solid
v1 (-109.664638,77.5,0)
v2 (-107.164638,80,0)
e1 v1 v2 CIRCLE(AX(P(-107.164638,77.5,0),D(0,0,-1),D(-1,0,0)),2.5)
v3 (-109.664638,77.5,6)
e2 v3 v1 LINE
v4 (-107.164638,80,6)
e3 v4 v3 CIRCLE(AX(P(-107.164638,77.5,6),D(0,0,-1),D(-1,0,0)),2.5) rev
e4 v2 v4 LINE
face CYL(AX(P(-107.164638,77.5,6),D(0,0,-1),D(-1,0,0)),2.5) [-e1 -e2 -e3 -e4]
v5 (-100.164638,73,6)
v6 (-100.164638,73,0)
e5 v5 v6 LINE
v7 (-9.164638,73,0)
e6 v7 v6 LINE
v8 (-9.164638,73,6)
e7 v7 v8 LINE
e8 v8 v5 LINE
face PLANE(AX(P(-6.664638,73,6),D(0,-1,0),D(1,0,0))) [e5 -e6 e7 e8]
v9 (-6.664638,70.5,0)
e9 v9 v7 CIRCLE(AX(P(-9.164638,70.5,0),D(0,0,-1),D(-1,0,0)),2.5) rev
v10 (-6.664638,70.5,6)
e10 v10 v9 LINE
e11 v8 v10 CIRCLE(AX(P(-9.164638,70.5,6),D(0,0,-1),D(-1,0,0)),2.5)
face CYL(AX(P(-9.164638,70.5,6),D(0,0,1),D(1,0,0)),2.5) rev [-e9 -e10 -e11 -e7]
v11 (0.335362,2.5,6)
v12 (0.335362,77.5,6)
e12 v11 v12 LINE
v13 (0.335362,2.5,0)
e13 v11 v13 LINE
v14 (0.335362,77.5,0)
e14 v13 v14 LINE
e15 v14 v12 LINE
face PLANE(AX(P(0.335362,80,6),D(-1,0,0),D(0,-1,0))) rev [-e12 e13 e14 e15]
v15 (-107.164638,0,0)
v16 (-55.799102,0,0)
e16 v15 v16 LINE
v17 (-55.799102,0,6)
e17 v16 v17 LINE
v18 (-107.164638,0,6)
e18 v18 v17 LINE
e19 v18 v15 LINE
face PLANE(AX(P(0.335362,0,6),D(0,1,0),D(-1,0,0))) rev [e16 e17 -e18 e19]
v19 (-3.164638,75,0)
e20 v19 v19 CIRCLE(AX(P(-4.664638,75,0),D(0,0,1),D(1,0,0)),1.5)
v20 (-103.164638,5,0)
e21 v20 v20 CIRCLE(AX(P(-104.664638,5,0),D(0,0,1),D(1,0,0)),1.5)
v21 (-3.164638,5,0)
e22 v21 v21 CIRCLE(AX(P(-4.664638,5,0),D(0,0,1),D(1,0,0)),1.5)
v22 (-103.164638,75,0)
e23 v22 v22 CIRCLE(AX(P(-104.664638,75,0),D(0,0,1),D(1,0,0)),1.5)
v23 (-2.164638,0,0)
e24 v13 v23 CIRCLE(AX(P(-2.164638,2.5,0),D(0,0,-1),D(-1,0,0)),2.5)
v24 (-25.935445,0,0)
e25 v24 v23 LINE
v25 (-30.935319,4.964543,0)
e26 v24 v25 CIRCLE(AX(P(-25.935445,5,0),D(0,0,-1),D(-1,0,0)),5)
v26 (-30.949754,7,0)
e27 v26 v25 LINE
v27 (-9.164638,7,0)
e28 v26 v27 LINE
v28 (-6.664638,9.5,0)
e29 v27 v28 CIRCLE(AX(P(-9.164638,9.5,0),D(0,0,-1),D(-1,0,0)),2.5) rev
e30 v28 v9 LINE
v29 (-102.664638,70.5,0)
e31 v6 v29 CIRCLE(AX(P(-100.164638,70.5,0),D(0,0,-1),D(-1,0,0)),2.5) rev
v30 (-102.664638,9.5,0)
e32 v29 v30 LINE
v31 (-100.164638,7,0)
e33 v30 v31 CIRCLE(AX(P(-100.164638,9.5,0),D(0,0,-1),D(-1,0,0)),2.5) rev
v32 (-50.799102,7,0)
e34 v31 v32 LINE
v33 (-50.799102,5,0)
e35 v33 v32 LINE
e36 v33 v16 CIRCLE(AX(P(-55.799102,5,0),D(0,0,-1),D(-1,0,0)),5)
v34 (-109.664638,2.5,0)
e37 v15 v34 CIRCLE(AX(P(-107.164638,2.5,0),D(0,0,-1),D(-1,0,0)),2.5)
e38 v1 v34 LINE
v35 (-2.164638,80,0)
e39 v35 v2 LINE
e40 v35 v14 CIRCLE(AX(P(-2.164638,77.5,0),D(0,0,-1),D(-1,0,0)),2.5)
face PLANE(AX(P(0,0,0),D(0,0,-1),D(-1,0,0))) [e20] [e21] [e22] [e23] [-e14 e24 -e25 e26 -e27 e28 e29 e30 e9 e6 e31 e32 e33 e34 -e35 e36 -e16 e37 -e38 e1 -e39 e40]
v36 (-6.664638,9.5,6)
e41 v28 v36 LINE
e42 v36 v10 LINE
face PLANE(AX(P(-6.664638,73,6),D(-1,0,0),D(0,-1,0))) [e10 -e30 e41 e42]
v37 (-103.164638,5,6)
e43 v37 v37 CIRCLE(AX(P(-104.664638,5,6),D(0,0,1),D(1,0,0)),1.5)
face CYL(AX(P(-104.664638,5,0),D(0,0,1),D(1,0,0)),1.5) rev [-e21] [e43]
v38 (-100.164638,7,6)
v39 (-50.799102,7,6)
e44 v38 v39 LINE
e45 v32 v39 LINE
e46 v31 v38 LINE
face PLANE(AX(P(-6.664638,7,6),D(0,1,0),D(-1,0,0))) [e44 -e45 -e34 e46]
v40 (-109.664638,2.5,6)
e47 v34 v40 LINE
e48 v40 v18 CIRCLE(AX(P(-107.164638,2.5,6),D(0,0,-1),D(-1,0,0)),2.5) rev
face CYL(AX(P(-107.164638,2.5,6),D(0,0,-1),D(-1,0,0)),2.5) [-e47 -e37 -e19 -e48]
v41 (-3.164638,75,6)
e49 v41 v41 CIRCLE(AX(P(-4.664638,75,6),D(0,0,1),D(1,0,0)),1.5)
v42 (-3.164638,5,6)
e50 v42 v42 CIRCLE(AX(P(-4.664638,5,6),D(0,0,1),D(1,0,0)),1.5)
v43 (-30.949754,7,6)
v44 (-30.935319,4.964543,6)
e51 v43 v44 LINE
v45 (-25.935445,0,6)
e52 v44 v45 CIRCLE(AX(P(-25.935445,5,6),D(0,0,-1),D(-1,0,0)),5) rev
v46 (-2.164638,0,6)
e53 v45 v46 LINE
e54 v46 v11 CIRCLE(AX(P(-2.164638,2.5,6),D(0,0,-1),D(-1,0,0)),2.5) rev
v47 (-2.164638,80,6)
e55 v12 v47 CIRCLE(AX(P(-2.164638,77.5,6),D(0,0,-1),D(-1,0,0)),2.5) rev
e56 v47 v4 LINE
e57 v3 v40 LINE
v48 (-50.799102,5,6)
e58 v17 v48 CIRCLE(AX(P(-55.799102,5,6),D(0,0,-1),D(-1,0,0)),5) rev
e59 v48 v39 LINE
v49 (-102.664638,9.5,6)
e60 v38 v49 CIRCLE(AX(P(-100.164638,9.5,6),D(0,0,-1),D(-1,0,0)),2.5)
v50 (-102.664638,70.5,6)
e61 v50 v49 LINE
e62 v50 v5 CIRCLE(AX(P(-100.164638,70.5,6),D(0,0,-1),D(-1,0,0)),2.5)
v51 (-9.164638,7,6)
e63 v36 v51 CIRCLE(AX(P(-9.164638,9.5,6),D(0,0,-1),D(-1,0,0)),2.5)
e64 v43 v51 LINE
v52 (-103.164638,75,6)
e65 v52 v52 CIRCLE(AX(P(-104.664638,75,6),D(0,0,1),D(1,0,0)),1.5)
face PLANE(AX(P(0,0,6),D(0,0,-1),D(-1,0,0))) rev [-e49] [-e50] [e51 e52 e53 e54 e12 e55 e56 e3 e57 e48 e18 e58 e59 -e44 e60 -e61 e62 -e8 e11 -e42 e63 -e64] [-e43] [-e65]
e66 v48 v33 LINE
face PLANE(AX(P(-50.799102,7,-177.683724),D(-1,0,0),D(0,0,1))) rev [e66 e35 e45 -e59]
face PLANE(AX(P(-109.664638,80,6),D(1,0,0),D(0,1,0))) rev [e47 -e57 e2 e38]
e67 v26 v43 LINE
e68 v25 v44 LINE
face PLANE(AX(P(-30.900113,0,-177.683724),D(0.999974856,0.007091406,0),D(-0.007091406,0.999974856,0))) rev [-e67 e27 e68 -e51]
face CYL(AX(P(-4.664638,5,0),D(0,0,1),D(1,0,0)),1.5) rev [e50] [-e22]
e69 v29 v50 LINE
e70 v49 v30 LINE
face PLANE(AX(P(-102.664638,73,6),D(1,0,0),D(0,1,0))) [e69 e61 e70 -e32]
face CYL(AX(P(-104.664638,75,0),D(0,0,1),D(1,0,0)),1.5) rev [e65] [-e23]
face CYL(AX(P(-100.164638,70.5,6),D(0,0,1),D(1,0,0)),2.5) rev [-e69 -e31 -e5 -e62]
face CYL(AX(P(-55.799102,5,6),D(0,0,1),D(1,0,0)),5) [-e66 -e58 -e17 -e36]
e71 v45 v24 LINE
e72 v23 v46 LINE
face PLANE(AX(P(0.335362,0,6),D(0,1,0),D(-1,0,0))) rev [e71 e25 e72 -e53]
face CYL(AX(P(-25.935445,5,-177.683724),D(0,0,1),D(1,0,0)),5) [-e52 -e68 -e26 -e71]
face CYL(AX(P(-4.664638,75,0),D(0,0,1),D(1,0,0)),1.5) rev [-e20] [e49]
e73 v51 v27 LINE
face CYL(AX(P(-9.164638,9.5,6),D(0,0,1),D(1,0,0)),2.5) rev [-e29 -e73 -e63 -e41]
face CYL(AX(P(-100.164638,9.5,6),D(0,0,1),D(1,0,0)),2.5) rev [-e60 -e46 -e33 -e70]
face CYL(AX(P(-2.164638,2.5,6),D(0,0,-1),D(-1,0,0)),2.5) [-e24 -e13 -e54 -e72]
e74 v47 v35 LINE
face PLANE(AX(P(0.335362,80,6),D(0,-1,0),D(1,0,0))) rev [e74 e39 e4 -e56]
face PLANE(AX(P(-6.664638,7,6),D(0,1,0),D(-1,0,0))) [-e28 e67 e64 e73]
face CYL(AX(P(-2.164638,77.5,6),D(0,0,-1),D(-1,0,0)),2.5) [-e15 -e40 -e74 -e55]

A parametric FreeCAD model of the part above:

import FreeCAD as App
import Part
import Sketcher

V = App.Vector
Q = App.Units.Quantity


def edges_at(feature, points):
    """Names of the edges that pass closest to the given points."""
    edges = feature.Shape.Edges
    near = lambda p: min(range(len(edges)), key=lambda i: edges[i].distToShape(Part.Vertex(*p))[0])
    return sorted({f"Edge{near(p) + 1}" for p in points})

doc = App.newDocument("Part")
body = doc.addObject("PartDesign::Body", "Body")

sketch1 = body.newObject("Sketcher::SketchObject", "Sketch")
sketch1.AttachmentSupport = (doc.getObject("XY_Plane"), [""])
sketch1.MapMode = "FlatFace"
sketch1.addGeometry([
    Part.LineSegment(V(-110, 80, 0), V(-110, 0, 0)),
    Part.LineSegment(V(-110, 0, 0), V(0, 0, 0)),
    Part.LineSegment(V(0, 0, 0), V(0, 80, 0)),
    Part.LineSegment(V(0, 80, 0), V(-110, 80, 0)),
    Part.LineSegment(V(-7, 7, 0), V(-103, 7, 0)),
    Part.LineSegment(V(-103, 7, 0), V(-103, 73, 0)),
    Part.LineSegment(V(-103, 73, 0), V(-7, 73, 0)),
    Part.LineSegment(V(-7, 73, 0), V(-7, 7, 0)),
], False)
sketch1.addConstraint([
    Sketcher.Constraint("Coincident", 0, 2, 1, 1),
    Sketcher.Constraint("Coincident", 1, 2, 2, 1),
    Sketcher.Constraint("Coincident", 2, 2, 3, 1),
    Sketcher.Constraint("Coincident", 3, 2, 0, 1),
    Sketcher.Constraint("Coincident", 4, 2, 5, 1),
    Sketcher.Constraint("Coincident", 5, 2, 6, 1),
    Sketcher.Constraint("Coincident", 6, 2, 7, 1),
    Sketcher.Constraint("Coincident", 7, 2, 4, 1),
    Sketcher.Constraint("Vertical", 0),
    Sketcher.Constraint("Horizontal", 1),
    Sketcher.Constraint("Vertical", 2),
    Sketcher.Constraint("Horizontal", 3),
    Sketcher.Constraint("Horizontal", 4),
    Sketcher.Constraint("Vertical", 5),
    Sketcher.Constraint("Horizontal", 6),
    Sketcher.Constraint("Vertical", 7),
    Sketcher.Constraint("PointOnObject", 0, 2, -1),
    Sketcher.Constraint("DistanceX", 1, 1, 1, 2, Q("110 mm")),
    Sketcher.Constraint("DistanceX", 4, 2, 4, 1, Q("96 mm")),
    Sketcher.Constraint("DistanceY", 0, 2, 0, 1, Q("80 mm")),
    Sketcher.Constraint("DistanceY", 5, 1, 5, 2, Q("66 mm")),
    Sketcher.Constraint("DistanceY", -1, 1, 4, 2, Q("7 mm")),
    Sketcher.Constraint("DistanceX", 0, 2, 4, 2, Q("7 mm")),
    Sketcher.Constraint("DistanceX", 0, 2, -1, 1, Q("109.664638 mm")),
])
pad1 = body.newObject("PartDesign::Pad", "Pad")
pad1.Profile = sketch1
pad1.Length = 6
doc.recompute()

fillet = body.newObject("PartDesign::Fillet", "Fillet")
fillet.Base = (pad1, edges_at(pad1, [
    (-6.665, 7, 3),
    (-6.665, 73, 3),
    (-102.665, 73, 3),
    (-102.665, 7, 3),
]))
fillet.Radius = 2.5

sketch2 = body.newObject("Sketcher::SketchObject", "Sketch001")
sketch2.AttachmentSupport = (doc.getObject("XY_Plane"), [""])
sketch2.MapMode = "FlatFace"
sketch2.AttachmentOffset = App.Placement(V(0, 0, 6), App.Rotation())
sketch2.addGeometry([
    Part.Circle(V(-4.7, 75, 0), V(0, 0, 1), 1.5),
    Part.Circle(V(-4.7, 5, 0), V(0, 0, 1), 1.5),
    Part.Circle(V(-104.7, 5, 0), V(0, 0, 1), 1.5),
    Part.Circle(V(-104.7, 75, 0), V(0, 0, 1), 1.5),
], False)
sketch2.addConstraint([
    Sketcher.Constraint("Equal", 0, 1),
    Sketcher.Constraint("Equal", 1, 2),
    Sketcher.Constraint("Equal", 2, 3),
    Sketcher.Constraint("Horizontal", 1, 3, 2, 3),
    Sketcher.Constraint("Horizontal", 0, 3, 3, 3),
    Sketcher.Constraint("Vertical", 0, 3, 1, 3),
    Sketcher.Constraint("Vertical", 2, 3, 3, 3),
    Sketcher.Constraint("Diameter", 0, Q("3 mm")),
    Sketcher.Constraint("DistanceY", -1, 1, 0, 3, Q("75 mm")),
    Sketcher.Constraint("DistanceY", -1, 1, 1, 3, Q("5 mm")),
    Sketcher.Constraint("DistanceX", 2, 3, 1, 3, Q("100 mm")),
    Sketcher.Constraint("DistanceX", 0, 3, -1, 1, Q("4.664638 mm")),
])
pocket1 = body.newObject("PartDesign::Pocket", "Pocket")
pocket1.Profile = sketch2
pocket1.Type = "ThroughAll"
doc.recompute()

fillet2 = body.newObject("PartDesign::Fillet", "Fillet001")
fillet2.Base = (pocket1, edges_at(pocket1, [
    (0.335, 0, 3),
    (-109.665, 0, 3),
    (-109.665, 80, 3),
    (0.335, 80, 3),
]))
fillet2.Radius = 2.5

sketch3 = body.newObject("Sketcher::SketchObject", "Sketch002")
sketch3.AttachmentSupport = (doc.getObject("XY_Plane"), [""])
sketch3.MapMode = "FlatFace"
sketch3.addGeometry([
    Part.LineSegment(V(-31, 0, 0), V(-29, -235, 0)),
    Part.LineSegment(V(-29, -235, 0), V(-29, -704, 0)),
    Part.LineSegment(V(-29, -704, 0), V(-51, -704, 0)),
    Part.LineSegment(V(-51, -704, 0), V(-51, -235, 0)),
    Part.LineSegment(V(-51, -235, 0), V(-51, 7, 0)),
    Part.LineSegment(V(-51, 7, 0), V(-31, 7, 0)),
    Part.LineSegment(V(-31, 7, 0), V(-31, 0, 0)),
], False)
sketch3.addConstraint([
    Sketcher.Constraint("Coincident", 0, 2, 1, 1),
    Sketcher.Constraint("Coincident", 1, 2, 2, 1),
    Sketcher.Constraint("Coincident", 2, 2, 3, 1),
    Sketcher.Constraint("Coincident", 3, 2, 4, 1),
    Sketcher.Constraint("Coincident", 4, 2, 5, 1),
    Sketcher.Constraint("Coincident", 5, 2, 6, 1),
    Sketcher.Constraint("Coincident", 6, 2, 0, 1),
    Sketcher.Constraint("Vertical", 4),
    Sketcher.Constraint("Horizontal", 5),
    Sketcher.Constraint("PointOnObject", 6, 2, -1),
    Sketcher.Constraint("Perpendicular", 1, 2),
    Sketcher.Constraint("Perpendicular", 2, 3),
    Sketcher.Constraint("Parallel", 0, 6),
    Sketcher.Constraint("Equal", 1, 3),
    Sketcher.Constraint("DistanceY", -1, 1, 4, 2, Q("7 mm")),
    Sketcher.Constraint("DistanceX", 3, 2, -1, 1, Q("50.799102 mm")),
    Sketcher.Constraint("DistanceX", 5, 1, 5, 2, Q("19.849348 mm")),
    Sketcher.Constraint("DistanceY", 4, 1, 4, 2, Q("241.533742 mm")),
    Sketcher.Constraint("DistanceX", 0, 2, -1, 1, Q("29.236939 mm")),
    Sketcher.Constraint("DistanceX", 1, 2, -1, 1, Q("29.10865 mm")),
    Sketcher.Constraint("DistanceY", 1, 2, -1, 1, Q("703.595311 mm")),
])
pocket2 = body.newObject("PartDesign::Pocket", "Pocket001")
pocket2.Profile = sketch3
pocket2.Type = "ThroughAll"
pocket2.Midplane = True
doc.recompute()

fillet3 = body.newObject("PartDesign::Fillet", "Fillet002")
fillet3.Base = (pocket2, edges_at(pocket2, [(-30.9, 0, 3), (-50.799, 0, 3)]))
fillet3.Radius = 5

doc.recompute()
